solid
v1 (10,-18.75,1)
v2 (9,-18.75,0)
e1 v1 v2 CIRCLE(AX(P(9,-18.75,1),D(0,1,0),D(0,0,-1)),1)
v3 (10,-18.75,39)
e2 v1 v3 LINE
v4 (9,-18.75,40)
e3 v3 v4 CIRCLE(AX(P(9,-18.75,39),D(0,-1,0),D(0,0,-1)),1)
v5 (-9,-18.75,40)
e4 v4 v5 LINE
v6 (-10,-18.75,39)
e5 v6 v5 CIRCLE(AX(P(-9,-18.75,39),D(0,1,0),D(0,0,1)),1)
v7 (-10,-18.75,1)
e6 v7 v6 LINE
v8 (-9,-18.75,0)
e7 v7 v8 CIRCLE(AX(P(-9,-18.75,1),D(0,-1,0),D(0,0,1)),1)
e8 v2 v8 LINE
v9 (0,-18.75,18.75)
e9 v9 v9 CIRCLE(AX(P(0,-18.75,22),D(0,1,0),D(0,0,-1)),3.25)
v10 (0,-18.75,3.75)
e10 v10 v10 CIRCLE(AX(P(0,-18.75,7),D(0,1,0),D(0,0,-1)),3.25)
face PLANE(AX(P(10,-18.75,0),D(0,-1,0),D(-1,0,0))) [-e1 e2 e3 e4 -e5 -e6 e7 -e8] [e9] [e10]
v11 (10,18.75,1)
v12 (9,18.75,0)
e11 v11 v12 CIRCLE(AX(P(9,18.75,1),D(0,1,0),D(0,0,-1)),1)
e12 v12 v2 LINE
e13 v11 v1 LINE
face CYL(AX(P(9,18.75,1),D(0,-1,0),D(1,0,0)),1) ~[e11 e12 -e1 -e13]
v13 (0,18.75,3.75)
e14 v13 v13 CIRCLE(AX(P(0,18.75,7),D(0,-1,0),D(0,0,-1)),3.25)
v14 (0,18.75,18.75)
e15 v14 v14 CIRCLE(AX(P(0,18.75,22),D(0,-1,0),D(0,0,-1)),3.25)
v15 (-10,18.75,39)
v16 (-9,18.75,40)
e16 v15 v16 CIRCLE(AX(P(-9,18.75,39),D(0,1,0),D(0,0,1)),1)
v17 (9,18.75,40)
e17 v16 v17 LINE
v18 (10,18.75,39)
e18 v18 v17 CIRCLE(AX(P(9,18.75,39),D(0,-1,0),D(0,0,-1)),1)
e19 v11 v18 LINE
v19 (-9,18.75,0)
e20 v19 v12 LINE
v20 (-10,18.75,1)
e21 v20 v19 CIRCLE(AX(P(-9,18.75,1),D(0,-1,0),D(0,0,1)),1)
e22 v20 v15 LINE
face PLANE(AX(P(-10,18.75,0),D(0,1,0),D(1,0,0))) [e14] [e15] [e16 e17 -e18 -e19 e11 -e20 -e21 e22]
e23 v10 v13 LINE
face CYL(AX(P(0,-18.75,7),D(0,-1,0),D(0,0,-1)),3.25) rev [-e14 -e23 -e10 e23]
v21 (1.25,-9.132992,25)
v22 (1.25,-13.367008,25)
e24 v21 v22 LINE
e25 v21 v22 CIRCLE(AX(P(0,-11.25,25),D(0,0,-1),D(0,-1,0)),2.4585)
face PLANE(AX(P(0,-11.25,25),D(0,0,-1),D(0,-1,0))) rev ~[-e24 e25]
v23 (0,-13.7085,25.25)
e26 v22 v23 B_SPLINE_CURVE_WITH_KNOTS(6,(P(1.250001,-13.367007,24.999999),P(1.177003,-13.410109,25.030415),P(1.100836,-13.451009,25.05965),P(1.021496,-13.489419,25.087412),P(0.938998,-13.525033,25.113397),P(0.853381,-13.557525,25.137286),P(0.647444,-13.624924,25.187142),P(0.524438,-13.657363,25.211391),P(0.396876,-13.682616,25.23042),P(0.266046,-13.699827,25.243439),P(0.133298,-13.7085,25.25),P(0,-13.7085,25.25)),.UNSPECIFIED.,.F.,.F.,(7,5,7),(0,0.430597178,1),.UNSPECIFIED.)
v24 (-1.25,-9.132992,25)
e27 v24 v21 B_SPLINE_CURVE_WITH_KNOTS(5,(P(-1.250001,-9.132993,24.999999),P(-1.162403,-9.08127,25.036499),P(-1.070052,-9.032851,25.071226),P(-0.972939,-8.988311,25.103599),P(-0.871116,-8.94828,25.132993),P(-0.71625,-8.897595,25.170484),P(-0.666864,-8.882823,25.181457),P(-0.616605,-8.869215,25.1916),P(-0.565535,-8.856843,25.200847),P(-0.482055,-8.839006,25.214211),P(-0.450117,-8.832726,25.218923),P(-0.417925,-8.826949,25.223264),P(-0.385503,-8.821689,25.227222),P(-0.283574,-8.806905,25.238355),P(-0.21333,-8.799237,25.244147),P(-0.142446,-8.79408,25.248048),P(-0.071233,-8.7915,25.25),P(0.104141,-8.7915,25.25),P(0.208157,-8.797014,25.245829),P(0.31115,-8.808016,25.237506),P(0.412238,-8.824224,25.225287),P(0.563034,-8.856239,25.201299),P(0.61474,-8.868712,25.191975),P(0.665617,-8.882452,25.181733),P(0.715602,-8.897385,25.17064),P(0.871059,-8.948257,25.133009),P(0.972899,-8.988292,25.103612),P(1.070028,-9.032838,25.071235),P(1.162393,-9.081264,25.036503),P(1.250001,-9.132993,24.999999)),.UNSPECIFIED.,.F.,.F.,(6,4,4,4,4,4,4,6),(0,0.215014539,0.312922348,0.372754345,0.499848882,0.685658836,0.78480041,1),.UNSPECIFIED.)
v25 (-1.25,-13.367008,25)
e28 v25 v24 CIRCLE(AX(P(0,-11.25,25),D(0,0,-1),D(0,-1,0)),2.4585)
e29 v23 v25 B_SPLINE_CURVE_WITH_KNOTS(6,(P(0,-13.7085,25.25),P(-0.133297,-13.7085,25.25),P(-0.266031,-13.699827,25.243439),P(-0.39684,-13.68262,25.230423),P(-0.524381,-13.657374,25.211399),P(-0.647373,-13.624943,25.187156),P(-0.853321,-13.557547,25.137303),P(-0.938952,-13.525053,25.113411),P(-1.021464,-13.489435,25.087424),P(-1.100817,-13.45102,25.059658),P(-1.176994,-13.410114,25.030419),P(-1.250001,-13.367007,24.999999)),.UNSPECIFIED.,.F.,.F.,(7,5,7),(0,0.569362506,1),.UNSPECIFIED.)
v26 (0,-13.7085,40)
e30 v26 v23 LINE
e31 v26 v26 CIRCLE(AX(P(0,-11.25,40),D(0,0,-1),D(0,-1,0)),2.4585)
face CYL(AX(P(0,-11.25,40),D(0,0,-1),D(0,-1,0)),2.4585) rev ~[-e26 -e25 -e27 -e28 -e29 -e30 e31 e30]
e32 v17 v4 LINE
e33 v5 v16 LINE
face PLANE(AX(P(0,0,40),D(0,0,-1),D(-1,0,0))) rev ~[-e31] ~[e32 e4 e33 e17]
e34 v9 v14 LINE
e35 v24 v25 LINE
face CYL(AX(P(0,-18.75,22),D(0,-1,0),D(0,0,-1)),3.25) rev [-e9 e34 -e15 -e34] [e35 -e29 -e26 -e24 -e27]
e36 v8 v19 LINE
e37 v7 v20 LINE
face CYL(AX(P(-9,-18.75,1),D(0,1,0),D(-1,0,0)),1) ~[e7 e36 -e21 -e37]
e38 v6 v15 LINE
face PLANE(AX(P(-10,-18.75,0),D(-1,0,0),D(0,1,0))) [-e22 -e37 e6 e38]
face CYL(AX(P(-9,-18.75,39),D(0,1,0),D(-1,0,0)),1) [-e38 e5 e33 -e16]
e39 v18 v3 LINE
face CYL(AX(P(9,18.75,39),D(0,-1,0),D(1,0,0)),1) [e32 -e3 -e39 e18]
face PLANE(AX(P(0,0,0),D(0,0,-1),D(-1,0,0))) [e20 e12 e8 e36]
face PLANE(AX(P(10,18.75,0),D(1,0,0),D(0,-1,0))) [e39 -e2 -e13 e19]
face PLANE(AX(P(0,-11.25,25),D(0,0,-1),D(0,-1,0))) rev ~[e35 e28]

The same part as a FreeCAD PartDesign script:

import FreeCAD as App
import Part
import Sketcher

V = App.Vector
Q = App.Units.Quantity


def edges_at(feature, points):
    """Names of the edges that pass closest to the given points."""
    edges = feature.Shape.Edges
    near = lambda p: min(range(len(edges)), key=lambda i: edges[i].distToShape(Part.Vertex(*p))[0])
    return sorted({f"Edge{near(p) + 1}" for p in points})


def add_polygon(sketch, points):
    """Adds a closed chain of lines whose ends are joined by coincident constraints."""
    first, n = sketch.GeometryCount, len(points)
    for a, b in zip(points, points[1:] + points[:1]):
        sketch.addGeometry(Part.LineSegment(App.Vector(*a, 0), App.Vector(*b, 0)), False)
    for i in range(n):
        sketch.addConstraint(Sketcher.Constraint("Coincident", first + i, 2, first + (i + 1) % n, 1))

doc = App.newDocument("Part")
body = doc.addObject("PartDesign::Body", "Body")

# Sketch on XY plane
sketch1 = body.newObject("Sketcher::SketchObject", "Sketch")
sketch1.AttachmentSupport = (doc.getObject("XY_Plane"), [""])
sketch1.MapMode = "FlatFace"
add_polygon(sketch1, [(-10, -18.75), (10, -18.75), (10, 18.75), (-10, 18.75)])  # lines 0-3
sketch1.addConstraint([
    Sketcher.Constraint("Horizontal", 0),
    Sketcher.Constraint("Vertical", 1),
    Sketcher.Constraint("Horizontal", 2),
    Sketcher.Constraint("Vertical", 3),
    Sketcher.Constraint("Symmetric", 0, 2, 2, 2, -1, 1),
    Sketcher.Constraint("DistanceX", 0, 1, 0, 2, Q("20 mm")),
    Sketcher.Constraint("DistanceY", 1, 1, 1, 2, Q("37.5 mm")),
])
pad1 = body.newObject("PartDesign::Pad", "Pad")
pad1.Profile = sketch1
pad1.Length = 40

# Sketch on XY plane
sketch2 = body.newObject("Sketcher::SketchObject", "Sketch001")
sketch2.AttachmentSupport = (doc.getObject("XY_Plane"), [""])
sketch2.MapMode = "FlatFace"
sketch2.AttachmentOffset = App.Placement(V(0, 0, 40), App.Rotation())
sketch2.addGeometry(Part.Circle(V(0, -11.25, 0), V(0, 0, 1), 2.4585), False)
sketch2.addConstraint([
    Sketcher.Constraint("PointOnObject", 0, 3, -2),
    Sketcher.Constraint("Diameter", 0, Q("4.917 mm")),
    Sketcher.Constraint("DistanceY", 0, 3, -1, 1, Q("11.25 mm")),
])
doc.recompute()
hole = body.newObject("PartDesign::Hole", "Hole")
hole.Profile = sketch2
hole.ThreadType = "None"
hole.Diameter = 4.917
hole.DepthType = "Dimension"
hole.Depth = 15
hole.DrillPoint = "Flat"
doc.recompute()

fillet = body.newObject("PartDesign::Fillet", "Fillet")
fillet.Base = (hole, edges_at(hole, [
    (-10, 0, 40),
    (10, 0, 40),
    (-10, 0, 0),
    (10, 0, 0),
]))
fillet.Radius = 1

# Sketch on XZ plane
sketch3 = body.newObject("Sketcher::SketchObject", "Sketch002")
sketch3.AttachmentSupport = (doc.getObject("XZ_Plane"), [""])
sketch3.MapMode = "FlatFace"
sketch3.AttachmentOffset = App.Placement(V(0, 0, 18.75), App.Rotation())
sketch3.addGeometry(Part.Circle(V(0, 22, 0), V(0, 0, 1), 3.25), False)
sketch3.addConstraint([
    Sketcher.Constraint("PointOnObject", 0, 3, -2),
    Sketcher.Constraint("Diameter", 0, Q("6.5 mm")),
    Sketcher.Constraint("DistanceY", -1, 1, 0, 3, Q("22 mm")),
])
doc.recompute()
hole2 = body.newObject("PartDesign::Hole", "Hole001")
hole2.Profile = sketch3
hole2.ThreadType = "None"
hole2.Diameter = 6.5
hole2.DepthType = "ThroughAll"

# Sketch on XZ plane
sketch4 = body.newObject("Sketcher::SketchObject", "Sketch003")
sketch4.AttachmentSupport = (doc.getObject("XZ_Plane"), [""])
sketch4.MapMode = "FlatFace"
sketch4.AttachmentOffset = App.Placement(V(0, 0, 18.75), App.Rotation())
sketch4.addGeometry(Part.Circle(V(0, 7, 0), V(0, 0, 1), 3.25), False)
sketch4.addConstraint([
    Sketcher.Constraint("PointOnObject", 0, 3, -2),
    Sketcher.Constraint("Diameter", 0, Q("6.5 mm")),
    Sketcher.Constraint("DistanceY", -1, 1, 0, 3, Q("7 mm")),
])
doc.recompute()
hole3 = body.newObject("PartDesign::Hole", "Hole002")
hole3.Profile = sketch4
hole3.ThreadType = "None"
hole3.Diameter = 6.5
hole3.DepthType = "ThroughAll"

doc.recompute()
